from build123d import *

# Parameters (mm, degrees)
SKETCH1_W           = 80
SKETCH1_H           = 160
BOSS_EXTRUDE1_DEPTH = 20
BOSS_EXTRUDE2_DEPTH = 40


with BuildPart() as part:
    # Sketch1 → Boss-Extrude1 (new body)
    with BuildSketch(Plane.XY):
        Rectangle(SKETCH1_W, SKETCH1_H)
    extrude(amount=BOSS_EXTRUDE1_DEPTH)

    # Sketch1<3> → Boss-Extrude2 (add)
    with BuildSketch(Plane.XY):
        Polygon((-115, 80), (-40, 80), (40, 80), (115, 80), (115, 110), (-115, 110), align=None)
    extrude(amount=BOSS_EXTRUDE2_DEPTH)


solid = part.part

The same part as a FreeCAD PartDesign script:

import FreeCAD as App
import Part
import Sketcher
from FreeCAD import Vector


def add_polygon(sketch, points):
    """Adds a closed chain of lines whose ends are joined by coincident constraints."""
    first, n = sketch.GeometryCount, len(points)
    for a, b in zip(points, points[1:] + points[:1]):
        sketch.addGeometry(Part.LineSegment(App.Vector(*a, 0), App.Vector(*b, 0)), False)
    for i in range(n):
        sketch.addConstraint(Sketcher.Constraint("Coincident", first + i, 2, first + (i + 1) % n, 1))

doc = App.newDocument("Part")
body = doc.addObject("PartDesign::Body", "Body")

# Sketch on XY plane
sketch1 = doc.addObject("Sketcher::SketchObject", "Sketch")
body.addObject(sketch1)
sketch1.AttachmentSupport = (doc.XY_Plane, [""])
sketch1.MapMode = "FlatFace"
add_polygon(sketch1, [(-40, 80), (-40, -80), (40, -80), (40, 80)])  # lines 0-3
sketch1.addConstraint(Sketcher.Constraint("Vertical", 0))
sketch1.addConstraint(Sketcher.Constraint("Horizontal", 1))
sketch1.addConstraint(Sketcher.Constraint("Vertical", 2))
sketch1.addConstraint(Sketcher.Constraint("Horizontal", 3))
sketch1.addConstraint(Sketcher.Constraint("Symmetric", 0, 2, 2, 2, -1, 1))
sketch1.addConstraint(Sketcher.Constraint("DistanceX", 1, 1, 1, 2, 80.0))
sketch1.addConstraint(Sketcher.Constraint("DistanceY", 0, 2, 0, 1, 160.0))
pad1 = doc.addObject("PartDesign::Pad", "Pad")
body.addObject(pad1)
pad1.Profile = sketch1
pad1.Length = 20

# Sketch on XY plane
sketch2 = doc.addObject("Sketcher::SketchObject", "Sketch001")
body.addObject(sketch2)
sketch2.AttachmentSupport = (doc.XY_Plane, [""])
sketch2.MapMode = "FlatFace"
add_polygon(sketch2, [(-115, 80), (115, 80), (115, 110), (-115, 110)])  # lines 0-3
sketch2.addConstraint(Sketcher.Constraint("Horizontal", 0))
sketch2.addConstraint(Sketcher.Constraint("Vertical", 1))
sketch2.addConstraint(Sketcher.Constraint("Horizontal", 2))
sketch2.addConstraint(Sketcher.Constraint("Vertical", 3))
sketch2.addConstraint(Sketcher.Constraint("DistanceX", 0, 1, 0, 2, 230.0))
sketch2.addConstraint(Sketcher.Constraint("DistanceY", 1, 1, 1, 2, 30.0))
sketch2.addConstraint(Sketcher.Constraint("DistanceX", -1, 1, 0, 2, 115.0))
sketch2.addConstraint(Sketcher.Constraint("DistanceY", -1, 1, 0, 2, 80.0))
pad2 = doc.addObject("PartDesign::Pad", "Pad001")
body.addObject(pad2)
pad2.Profile = sketch2
pad2.Length = 40

doc.recompute()
